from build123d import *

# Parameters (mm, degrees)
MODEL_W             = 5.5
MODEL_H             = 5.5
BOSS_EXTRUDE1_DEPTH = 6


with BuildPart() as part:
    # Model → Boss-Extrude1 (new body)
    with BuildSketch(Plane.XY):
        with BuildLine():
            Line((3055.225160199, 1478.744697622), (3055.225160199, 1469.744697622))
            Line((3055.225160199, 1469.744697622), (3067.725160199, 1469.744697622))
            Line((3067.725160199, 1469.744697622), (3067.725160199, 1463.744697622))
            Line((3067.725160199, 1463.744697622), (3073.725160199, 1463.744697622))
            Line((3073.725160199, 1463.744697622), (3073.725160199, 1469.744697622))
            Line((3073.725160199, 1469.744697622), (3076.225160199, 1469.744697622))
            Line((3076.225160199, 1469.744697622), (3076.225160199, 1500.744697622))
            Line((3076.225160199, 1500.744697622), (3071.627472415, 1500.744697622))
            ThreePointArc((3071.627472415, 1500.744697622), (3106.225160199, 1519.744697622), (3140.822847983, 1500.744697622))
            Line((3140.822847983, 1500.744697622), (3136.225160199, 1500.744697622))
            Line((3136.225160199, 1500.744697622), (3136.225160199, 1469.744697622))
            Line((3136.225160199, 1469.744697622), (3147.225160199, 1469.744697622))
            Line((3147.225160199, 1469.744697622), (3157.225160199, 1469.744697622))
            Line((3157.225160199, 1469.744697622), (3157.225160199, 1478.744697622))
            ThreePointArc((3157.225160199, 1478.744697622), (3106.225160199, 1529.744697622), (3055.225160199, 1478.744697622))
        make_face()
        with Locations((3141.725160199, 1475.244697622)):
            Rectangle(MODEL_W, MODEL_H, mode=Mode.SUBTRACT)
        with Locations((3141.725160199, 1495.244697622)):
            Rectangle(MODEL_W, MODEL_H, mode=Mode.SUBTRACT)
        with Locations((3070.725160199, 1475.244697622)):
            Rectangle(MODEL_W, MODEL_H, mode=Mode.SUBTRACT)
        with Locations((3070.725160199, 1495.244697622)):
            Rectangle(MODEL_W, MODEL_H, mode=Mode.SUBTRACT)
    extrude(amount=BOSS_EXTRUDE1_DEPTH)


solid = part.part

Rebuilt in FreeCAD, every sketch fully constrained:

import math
import FreeCAD as App
import Part
import Sketcher
from FreeCAD import Vector
Q = App.Units.Quantity


def add_polygon(sketch, points):
    """Adds a closed chain of lines whose ends are joined by coincident constraints."""
    first, n = sketch.GeometryCount, len(points)
    for a, b in zip(points, points[1:] + points[:1]):
        sketch.addGeometry(Part.LineSegment(App.Vector(*a, 0), App.Vector(*b, 0)), False)
    for i in range(n):
        sketch.addConstraint(Sketcher.Constraint("Coincident", first + i, 2, first + (i + 1) % n, 1))

doc = App.newDocument("Part")
body = doc.addObject("PartDesign::Body", "Body")

# Sketch on XY plane
sketch1 = body.newObject("Sketcher::SketchObject", "Sketch")
sketch1.AttachmentSupport = (doc.getObject("XY_Plane"), [""])
sketch1.MapMode = "FlatFace"
sketch1.addGeometry(Part.LineSegment(Vector(3055.22516, 1478.744698, 0), Vector(3055.22516, 1469.744698, 0)), False)  # 0
sketch1.addGeometry(Part.LineSegment(Vector(3055.22516, 1469.744698, 0), Vector(3067.72516, 1469.744698, 0)), False)  # 1
sketch1.addGeometry(Part.LineSegment(Vector(3067.72516, 1469.744698, 0), Vector(3067.72516, 1463.744698, 0)), False)  # 2
sketch1.addGeometry(Part.LineSegment(Vector(3067.72516, 1463.744698, 0), Vector(3073.72516, 1463.744698, 0)), False)  # 3
sketch1.addGeometry(Part.LineSegment(Vector(3073.72516, 1463.744698, 0), Vector(3073.72516, 1469.744698, 0)), False)  # 4
sketch1.addGeometry(Part.LineSegment(Vector(3073.72516, 1469.744698, 0), Vector(3076.22516, 1469.744698, 0)), False)  # 5
sketch1.addGeometry(Part.LineSegment(Vector(3076.22516, 1469.744698, 0), Vector(3076.22516, 1500.744698, 0)), False)  # 6
sketch1.addGeometry(Part.LineSegment(Vector(3076.22516, 1500.744698, 0), Vector(3071.627472, 1500.744698, 0)), False)  # 7
sketch1.addGeometry(Part.ArcOfCircle(Part.Circle(Vector(3106.22516, 1478.744698, 0), Vector(0, 0, 1), 41), math.radians(32.451491), math.radians(147.548509)), False)  # 8
sketch1.addGeometry(Part.LineSegment(Vector(3140.822848, 1500.744698, 0), Vector(3136.22516, 1500.744698, 0)), False)  # 9
sketch1.addGeometry(Part.LineSegment(Vector(3136.22516, 1500.744698, 0), Vector(3136.22516, 1469.744698, 0)), False)  # 10
sketch1.addGeometry(Part.LineSegment(Vector(3136.22516, 1469.744698, 0), Vector(3157.22516, 1469.744698, 0)), False)  # 11
sketch1.addGeometry(Part.LineSegment(Vector(3157.22516, 1469.744698, 0), Vector(3157.22516, 1478.744698, 0)), False)  # 12
sketch1.addGeometry(Part.ArcOfCircle(Part.Circle(Vector(3106.22516, 1478.744698, 0), Vector(0, 0, 1), 51), math.radians(0), math.radians(180)), False)  # 13
add_polygon(sketch1, [(3073.47516, 1472.494698), (3067.97516, 1472.494698), (3067.97516, 1477.994698), (3073.47516, 1477.994698)])  # lines 14-17
add_polygon(sketch1, [(3144.47516, 1472.494698), (3138.97516, 1472.494698), (3138.97516, 1477.994698), (3144.47516, 1477.994698)])  # lines 18-21
add_polygon(sketch1, [(3073.47516, 1492.494698), (3067.97516, 1492.494698), (3067.97516, 1497.994698), (3073.47516, 1497.994698)])  # lines 22-25
add_polygon(sketch1, [(3144.47516, 1492.494698), (3138.97516, 1492.494698), (3138.97516, 1497.994698), (3144.47516, 1497.994698)])  # lines 26-29
sketch1.addConstraint(Sketcher.Constraint("Coincident", 0, 2, 1, 1))
sketch1.addConstraint(Sketcher.Constraint("Coincident", 1, 2, 2, 1))
sketch1.addConstraint(Sketcher.Constraint("Coincident", 2, 2, 3, 1))
sketch1.addConstraint(Sketcher.Constraint("Coincident", 3, 2, 4, 1))
sketch1.addConstraint(Sketcher.Constraint("Coincident", 4, 2, 5, 1))
sketch1.addConstraint(Sketcher.Constraint("Coincident", 5, 2, 6, 1))
sketch1.addConstraint(Sketcher.Constraint("Coincident", 6, 2, 7, 1))
sketch1.addConstraint(Sketcher.Constraint("Coincident", 7, 2, 8, 2))
sketch1.addConstraint(Sketcher.Constraint("Coincident", 8, 1, 9, 1))
sketch1.addConstraint(Sketcher.Constraint("Coincident", 9, 2, 10, 1))
sketch1.addConstraint(Sketcher.Constraint("Coincident", 10, 2, 11, 1))
sketch1.addConstraint(Sketcher.Constraint("Coincident", 11, 2, 12, 1))
sketch1.addConstraint(Sketcher.Constraint("Tangent", 12, 2, 13, 1))
sketch1.addConstraint(Sketcher.Constraint("Tangent", 13, 2, 0, 1))
sketch1.addConstraint(Sketcher.Constraint("Vertical", 0))
sketch1.addConstraint(Sketcher.Constraint("Horizontal", 1))
sketch1.addConstraint(Sketcher.Constraint("Vertical", 2))
sketch1.addConstraint(Sketcher.Constraint("Horizontal", 3))
sketch1.addConstraint(Sketcher.Constraint("Vertical", 4))
sketch1.addConstraint(Sketcher.Constraint("Horizontal", 5))
sketch1.addConstraint(Sketcher.Constraint("Vertical", 6))
sketch1.addConstraint(Sketcher.Constraint("Horizontal", 7))
sketch1.addConstraint(Sketcher.Constraint("Horizontal", 9))
sketch1.addConstraint(Sketcher.Constraint("Vertical", 10))
sketch1.addConstraint(Sketcher.Constraint("Horizontal", 11))
sketch1.addConstraint(Sketcher.Constraint("Vertical", 12))
sketch1.addConstraint(Sketcher.Constraint("Horizontal", 14))
sketch1.addConstraint(Sketcher.Constraint("Vertical", 15))
sketch1.addConstraint(Sketcher.Constraint("Horizontal", 16))
sketch1.addConstraint(Sketcher.Constraint("Vertical", 17))
sketch1.addConstraint(Sketcher.Constraint("Horizontal", 18))
sketch1.addConstraint(Sketcher.Constraint("Vertical", 19))
sketch1.addConstraint(Sketcher.Constraint("Horizontal", 20))
sketch1.addConstraint(Sketcher.Constraint("Vertical", 21))
sketch1.addConstraint(Sketcher.Constraint("Horizontal", 22))
sketch1.addConstraint(Sketcher.Constraint("Vertical", 23))
sketch1.addConstraint(Sketcher.Constraint("Horizontal", 24))
sketch1.addConstraint(Sketcher.Constraint("Vertical", 25))
sketch1.addConstraint(Sketcher.Constraint("Horizontal", 26))
sketch1.addConstraint(Sketcher.Constraint("Vertical", 27))
sketch1.addConstraint(Sketcher.Constraint("Horizontal", 28))
sketch1.addConstraint(Sketcher.Constraint("Vertical", 29))
sketch1.addConstraint(Sketcher.Constraint("Coincident", 13, 3, 8, 3))
sketch1.addConstraint(Sketcher.Constraint("Horizontal", 1, 2, 4, 2))
sketch1.addConstraint(Sketcher.Constraint("Horizontal", 7, 2, 8, 1))
sketch1.addConstraint(Sketcher.Constraint("Horizontal", 5, 2, 10, 2))
sketch1.addConstraint(Sketcher.Constraint("Horizontal", 17, 2, 18, 2))
sketch1.addConstraint(Sketcher.Constraint("Horizontal", 16, 2, 19, 2))
sketch1.addConstraint(Sketcher.Constraint("Horizontal", 25, 2, 26, 2))
sketch1.addConstraint(Sketcher.Constraint("Horizontal", 24, 2, 27, 2))
sketch1.addConstraint(Sketcher.Constraint("Vertical", 15, 2, 22, 2))
sketch1.addConstraint(Sketcher.Constraint("Vertical", 17, 2, 24, 2))
sketch1.addConstraint(Sketcher.Constraint("Vertical", 19, 2, 26, 2))
sketch1.addConstraint(Sketcher.Constraint("Vertical", 21, 2, 28, 2))
sketch1.addConstraint(Sketcher.Constraint("Equal", 7, 9))
sketch1.addConstraint(Sketcher.Constraint("Equal", 16, 18))
sketch1.addConstraint(Sketcher.Constraint("Equal", 3, 2))
sketch1.addConstraint(Sketcher.Constraint("Equal", 28, 15))
sketch1.addConstraint(Sketcher.Constraint("Equal", 21, 23))
sketch1.addConstraint(Sketcher.Constraint("Radius", 8, Q("41 mm")))
sketch1.addConstraint(Sketcher.Constraint("Radius", 13, Q("51 mm")))
sketch1.addConstraint(Sketcher.Constraint("DistanceX", 3, 1, 3, 2, Q("6 mm")))
sketch1.addConstraint(Sketcher.Constraint("DistanceX", 11, 1, 11, 2, Q("21 mm")))
sketch1.addConstraint(Sketcher.Constraint("DistanceY", 0, 2, 0, 1, Q("9 mm")))
sketch1.addConstraint(Sketcher.Constraint("DistanceY", 6, 1, 6, 2, Q("31 mm")))
sketch1.addConstraint(Sketcher.Constraint("DistanceX", 1, 1, 1, 2, Q("12.5 mm")))
sketch1.addConstraint(Sketcher.Constraint("DistanceX", 14, 2, 14, 1, Q("5.5 mm")))
sketch1.addConstraint(Sketcher.Constraint("DistanceY", 15, 2, 23, 2, Q("20 mm")))
sketch1.addConstraint(Sketcher.Constraint("DistanceX", 1, 2, 14, 2, Q("0.25 mm")))
sketch1.addConstraint(Sketcher.Constraint("DistanceY", 1, 2, 14, 2, Q("2.75 mm")))
sketch1.addConstraint(Sketcher.Constraint("DistanceX", 10, 2, 18, 2, Q("2.75 mm")))
sketch1.addConstraint(Sketcher.Constraint("DistanceX", -1, 1, 8, 3, Q("3106.22516 mm")))
sketch1.addConstraint(Sketcher.Constraint("DistanceY", -1, 1, 8, 3, Q("1478.744698 mm")))
pad1 = body.newObject("PartDesign::Pad", "Pad")
pad1.Profile = sketch1
pad1.Length = 6

doc.recompute()
